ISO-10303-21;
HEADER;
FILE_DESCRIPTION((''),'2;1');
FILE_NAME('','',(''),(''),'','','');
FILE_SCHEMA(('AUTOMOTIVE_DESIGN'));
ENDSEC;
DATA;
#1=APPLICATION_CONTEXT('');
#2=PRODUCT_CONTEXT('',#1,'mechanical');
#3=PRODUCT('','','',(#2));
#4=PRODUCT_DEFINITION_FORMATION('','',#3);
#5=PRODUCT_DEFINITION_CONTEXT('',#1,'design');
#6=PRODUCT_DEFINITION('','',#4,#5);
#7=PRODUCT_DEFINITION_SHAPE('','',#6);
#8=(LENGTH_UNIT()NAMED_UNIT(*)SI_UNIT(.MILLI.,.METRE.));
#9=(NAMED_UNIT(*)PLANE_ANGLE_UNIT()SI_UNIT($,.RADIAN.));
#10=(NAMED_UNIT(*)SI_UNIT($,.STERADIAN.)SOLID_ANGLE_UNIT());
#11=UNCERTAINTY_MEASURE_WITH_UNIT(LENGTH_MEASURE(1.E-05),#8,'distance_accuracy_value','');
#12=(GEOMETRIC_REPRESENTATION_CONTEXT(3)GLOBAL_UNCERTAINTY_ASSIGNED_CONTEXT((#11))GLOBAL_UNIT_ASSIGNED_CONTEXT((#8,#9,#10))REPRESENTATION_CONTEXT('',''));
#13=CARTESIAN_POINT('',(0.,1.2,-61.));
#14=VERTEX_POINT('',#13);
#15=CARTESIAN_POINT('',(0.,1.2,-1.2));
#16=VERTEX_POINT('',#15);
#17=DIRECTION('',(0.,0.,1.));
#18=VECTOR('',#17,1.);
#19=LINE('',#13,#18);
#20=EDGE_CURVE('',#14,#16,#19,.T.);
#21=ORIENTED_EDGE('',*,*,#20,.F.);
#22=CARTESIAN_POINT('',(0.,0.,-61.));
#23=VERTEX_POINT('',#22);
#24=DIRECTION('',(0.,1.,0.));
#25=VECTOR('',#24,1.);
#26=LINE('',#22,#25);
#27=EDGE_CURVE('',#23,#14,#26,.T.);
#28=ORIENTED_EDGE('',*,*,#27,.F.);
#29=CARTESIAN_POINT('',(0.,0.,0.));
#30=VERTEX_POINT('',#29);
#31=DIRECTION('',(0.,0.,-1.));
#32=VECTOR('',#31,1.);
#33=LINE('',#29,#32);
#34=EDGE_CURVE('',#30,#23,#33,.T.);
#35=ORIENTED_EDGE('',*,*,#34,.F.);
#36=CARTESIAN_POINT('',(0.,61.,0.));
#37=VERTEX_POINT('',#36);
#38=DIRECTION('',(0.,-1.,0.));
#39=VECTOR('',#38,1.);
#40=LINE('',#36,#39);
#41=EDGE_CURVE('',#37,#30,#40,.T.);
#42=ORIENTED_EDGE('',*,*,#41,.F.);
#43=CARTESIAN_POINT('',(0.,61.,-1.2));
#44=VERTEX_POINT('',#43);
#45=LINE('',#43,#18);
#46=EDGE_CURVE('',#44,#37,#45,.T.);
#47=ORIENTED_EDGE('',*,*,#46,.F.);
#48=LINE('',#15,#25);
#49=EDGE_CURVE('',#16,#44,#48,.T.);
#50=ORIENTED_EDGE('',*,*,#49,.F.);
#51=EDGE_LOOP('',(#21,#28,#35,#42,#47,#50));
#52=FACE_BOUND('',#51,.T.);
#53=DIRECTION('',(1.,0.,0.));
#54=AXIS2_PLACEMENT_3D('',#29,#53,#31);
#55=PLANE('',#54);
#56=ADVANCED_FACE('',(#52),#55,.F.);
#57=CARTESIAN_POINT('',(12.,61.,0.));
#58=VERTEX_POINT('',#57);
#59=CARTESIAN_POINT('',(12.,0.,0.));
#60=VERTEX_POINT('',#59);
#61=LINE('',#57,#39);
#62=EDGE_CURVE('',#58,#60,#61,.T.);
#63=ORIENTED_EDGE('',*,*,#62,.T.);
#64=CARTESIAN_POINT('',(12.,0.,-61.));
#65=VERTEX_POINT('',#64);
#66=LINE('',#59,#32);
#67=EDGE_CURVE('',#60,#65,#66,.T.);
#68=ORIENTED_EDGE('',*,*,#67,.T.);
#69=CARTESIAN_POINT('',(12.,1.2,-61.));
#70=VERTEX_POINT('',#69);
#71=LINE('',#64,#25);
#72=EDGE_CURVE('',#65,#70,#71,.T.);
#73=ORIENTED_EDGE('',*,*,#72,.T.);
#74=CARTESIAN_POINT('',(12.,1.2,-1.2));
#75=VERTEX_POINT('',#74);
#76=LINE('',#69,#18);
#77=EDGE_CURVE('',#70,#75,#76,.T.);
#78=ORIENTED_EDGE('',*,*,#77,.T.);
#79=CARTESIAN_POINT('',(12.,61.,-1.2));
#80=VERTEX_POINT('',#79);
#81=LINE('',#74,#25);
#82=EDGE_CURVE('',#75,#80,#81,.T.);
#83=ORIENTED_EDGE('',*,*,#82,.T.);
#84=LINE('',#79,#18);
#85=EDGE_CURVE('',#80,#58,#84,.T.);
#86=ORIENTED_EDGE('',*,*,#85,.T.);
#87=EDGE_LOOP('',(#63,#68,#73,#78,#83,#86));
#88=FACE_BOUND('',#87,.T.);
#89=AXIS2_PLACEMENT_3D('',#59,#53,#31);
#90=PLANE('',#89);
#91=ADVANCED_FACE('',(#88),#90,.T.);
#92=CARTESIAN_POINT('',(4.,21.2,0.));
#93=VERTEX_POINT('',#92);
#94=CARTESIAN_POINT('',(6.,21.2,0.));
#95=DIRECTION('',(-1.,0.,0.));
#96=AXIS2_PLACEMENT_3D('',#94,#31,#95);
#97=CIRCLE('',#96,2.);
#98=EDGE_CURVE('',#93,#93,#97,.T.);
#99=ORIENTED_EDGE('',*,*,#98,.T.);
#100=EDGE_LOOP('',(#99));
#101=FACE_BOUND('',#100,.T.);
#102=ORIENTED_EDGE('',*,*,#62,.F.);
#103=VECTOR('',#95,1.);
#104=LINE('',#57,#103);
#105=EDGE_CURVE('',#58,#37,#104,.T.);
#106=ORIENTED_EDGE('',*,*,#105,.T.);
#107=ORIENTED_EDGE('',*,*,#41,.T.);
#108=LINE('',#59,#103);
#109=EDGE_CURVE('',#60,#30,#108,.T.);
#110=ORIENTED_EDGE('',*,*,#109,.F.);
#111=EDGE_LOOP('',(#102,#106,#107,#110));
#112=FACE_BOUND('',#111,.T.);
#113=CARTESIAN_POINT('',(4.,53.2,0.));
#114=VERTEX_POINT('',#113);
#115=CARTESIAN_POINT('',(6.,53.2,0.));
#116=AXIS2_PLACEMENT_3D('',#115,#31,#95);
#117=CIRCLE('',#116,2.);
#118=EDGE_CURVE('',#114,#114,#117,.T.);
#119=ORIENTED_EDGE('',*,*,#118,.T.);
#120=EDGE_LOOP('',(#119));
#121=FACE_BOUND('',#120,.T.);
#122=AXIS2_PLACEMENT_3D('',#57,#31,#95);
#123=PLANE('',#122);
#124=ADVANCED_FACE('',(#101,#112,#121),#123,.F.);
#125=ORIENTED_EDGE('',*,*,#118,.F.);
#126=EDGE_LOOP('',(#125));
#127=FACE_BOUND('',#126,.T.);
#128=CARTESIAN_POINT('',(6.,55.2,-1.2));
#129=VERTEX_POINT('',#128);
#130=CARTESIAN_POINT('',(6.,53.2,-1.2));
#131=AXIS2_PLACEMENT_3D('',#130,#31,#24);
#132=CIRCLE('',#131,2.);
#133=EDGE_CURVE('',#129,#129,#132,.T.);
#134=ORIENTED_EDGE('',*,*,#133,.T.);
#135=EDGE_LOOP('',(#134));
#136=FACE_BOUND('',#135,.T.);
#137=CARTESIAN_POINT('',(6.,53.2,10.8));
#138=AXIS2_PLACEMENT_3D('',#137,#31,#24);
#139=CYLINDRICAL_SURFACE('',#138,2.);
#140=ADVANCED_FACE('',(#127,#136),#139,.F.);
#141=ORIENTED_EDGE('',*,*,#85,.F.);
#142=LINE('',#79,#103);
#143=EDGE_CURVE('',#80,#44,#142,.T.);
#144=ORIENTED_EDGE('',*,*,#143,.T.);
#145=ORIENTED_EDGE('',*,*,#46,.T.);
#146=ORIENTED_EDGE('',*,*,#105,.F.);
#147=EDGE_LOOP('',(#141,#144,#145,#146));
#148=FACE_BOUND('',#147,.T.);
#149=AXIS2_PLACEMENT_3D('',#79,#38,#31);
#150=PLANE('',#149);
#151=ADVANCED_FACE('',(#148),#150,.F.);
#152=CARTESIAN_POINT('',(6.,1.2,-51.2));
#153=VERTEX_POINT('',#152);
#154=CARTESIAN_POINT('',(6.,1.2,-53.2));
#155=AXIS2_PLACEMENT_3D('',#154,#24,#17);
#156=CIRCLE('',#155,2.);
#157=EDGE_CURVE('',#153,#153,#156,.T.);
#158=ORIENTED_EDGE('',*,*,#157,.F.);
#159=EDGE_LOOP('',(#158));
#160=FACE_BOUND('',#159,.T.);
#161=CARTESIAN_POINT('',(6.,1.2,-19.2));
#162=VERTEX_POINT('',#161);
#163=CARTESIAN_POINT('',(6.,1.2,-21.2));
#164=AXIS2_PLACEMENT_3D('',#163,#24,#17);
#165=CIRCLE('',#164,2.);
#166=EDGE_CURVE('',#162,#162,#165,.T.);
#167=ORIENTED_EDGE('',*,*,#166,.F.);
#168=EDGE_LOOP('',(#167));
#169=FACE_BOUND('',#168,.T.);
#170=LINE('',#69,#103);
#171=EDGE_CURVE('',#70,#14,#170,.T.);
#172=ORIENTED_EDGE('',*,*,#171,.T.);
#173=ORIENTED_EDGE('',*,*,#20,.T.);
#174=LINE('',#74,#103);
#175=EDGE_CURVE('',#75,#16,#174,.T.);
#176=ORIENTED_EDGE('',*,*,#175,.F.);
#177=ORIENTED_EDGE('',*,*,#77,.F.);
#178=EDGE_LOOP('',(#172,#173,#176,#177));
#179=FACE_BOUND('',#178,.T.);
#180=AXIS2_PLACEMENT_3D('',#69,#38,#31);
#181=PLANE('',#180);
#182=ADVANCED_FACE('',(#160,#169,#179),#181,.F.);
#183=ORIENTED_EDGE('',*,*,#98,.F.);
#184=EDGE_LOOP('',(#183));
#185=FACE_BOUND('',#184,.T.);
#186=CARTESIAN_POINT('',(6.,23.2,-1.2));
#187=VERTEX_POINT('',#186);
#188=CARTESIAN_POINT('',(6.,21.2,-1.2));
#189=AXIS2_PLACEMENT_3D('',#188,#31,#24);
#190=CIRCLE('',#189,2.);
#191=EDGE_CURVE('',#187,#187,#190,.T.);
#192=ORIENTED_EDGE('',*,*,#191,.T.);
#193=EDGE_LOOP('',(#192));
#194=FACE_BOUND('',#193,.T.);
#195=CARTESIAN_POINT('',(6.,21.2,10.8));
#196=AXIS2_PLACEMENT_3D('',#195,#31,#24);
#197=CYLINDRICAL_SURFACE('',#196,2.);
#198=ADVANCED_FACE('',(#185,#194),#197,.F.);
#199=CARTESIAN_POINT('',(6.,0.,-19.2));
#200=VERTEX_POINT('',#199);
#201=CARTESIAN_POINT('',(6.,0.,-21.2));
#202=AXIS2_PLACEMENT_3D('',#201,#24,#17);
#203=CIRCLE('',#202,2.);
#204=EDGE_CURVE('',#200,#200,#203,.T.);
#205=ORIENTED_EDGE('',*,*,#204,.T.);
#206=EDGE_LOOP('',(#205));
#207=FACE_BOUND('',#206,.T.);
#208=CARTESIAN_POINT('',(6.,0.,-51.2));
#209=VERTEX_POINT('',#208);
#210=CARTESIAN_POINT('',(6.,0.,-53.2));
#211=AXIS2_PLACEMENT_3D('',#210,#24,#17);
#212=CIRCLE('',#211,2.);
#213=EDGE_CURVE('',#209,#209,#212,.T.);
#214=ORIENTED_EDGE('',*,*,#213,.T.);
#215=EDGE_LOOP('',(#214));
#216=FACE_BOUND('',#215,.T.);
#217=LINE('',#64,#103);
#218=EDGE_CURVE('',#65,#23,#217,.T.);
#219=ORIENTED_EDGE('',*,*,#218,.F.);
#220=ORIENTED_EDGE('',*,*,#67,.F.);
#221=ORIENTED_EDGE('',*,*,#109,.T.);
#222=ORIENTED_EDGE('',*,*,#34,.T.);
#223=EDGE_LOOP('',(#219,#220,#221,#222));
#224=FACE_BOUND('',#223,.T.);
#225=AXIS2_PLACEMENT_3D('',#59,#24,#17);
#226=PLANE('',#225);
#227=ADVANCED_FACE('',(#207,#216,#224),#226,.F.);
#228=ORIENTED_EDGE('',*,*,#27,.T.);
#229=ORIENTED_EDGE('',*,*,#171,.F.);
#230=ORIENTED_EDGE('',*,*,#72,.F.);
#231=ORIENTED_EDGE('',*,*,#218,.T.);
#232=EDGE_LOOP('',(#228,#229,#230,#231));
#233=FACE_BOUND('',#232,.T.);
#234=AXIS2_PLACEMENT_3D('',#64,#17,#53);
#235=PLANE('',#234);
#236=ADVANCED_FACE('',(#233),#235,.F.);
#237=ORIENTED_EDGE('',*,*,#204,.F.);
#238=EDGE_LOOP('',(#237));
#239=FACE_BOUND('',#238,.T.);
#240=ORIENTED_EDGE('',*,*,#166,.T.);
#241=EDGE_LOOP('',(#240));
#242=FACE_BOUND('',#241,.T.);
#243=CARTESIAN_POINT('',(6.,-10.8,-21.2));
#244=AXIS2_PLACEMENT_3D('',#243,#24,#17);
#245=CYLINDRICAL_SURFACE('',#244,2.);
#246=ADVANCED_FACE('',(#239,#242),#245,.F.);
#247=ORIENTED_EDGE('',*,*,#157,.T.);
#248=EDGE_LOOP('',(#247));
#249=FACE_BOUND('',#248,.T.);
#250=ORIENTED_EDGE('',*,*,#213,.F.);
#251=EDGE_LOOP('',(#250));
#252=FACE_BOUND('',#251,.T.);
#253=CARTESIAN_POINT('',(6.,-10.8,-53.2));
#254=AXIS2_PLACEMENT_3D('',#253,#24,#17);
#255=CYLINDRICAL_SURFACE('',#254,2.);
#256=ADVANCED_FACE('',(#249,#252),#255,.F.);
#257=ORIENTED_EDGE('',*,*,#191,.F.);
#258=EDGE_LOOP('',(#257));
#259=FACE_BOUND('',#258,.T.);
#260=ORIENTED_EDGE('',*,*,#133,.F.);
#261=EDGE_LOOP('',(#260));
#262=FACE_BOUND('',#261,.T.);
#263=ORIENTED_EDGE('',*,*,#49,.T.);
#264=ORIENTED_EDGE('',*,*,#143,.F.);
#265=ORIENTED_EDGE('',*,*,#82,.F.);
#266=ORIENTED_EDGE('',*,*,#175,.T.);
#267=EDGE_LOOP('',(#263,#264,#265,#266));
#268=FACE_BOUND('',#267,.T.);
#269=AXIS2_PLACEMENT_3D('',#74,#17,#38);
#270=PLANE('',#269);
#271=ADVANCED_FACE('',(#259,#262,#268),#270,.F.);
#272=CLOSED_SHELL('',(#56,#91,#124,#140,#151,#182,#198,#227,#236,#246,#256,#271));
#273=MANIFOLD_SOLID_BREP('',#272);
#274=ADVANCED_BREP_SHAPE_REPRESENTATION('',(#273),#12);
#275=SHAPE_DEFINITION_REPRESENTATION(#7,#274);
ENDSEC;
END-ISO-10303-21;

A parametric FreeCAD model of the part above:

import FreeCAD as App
import Part
import Sketcher
from FreeCAD import Vector
Q = App.Units.Quantity


def add_polygon(sketch, points):
    """Adds a closed chain of lines whose ends are joined by coincident constraints."""
    first, n = sketch.GeometryCount, len(points)
    for a, b in zip(points, points[1:] + points[:1]):
        sketch.addGeometry(Part.LineSegment(App.Vector(*a, 0), App.Vector(*b, 0)), False)
    for i in range(n):
        sketch.addConstraint(Sketcher.Constraint("Coincident", first + i, 2, first + (i + 1) % n, 1))

doc = App.newDocument("Part")
body = doc.addObject("PartDesign::Body", "Body")

# Sketch on YZ plane
sketch1 = body.newObject("Sketcher::SketchObject", "Sketch")
sketch1.AttachmentSupport = (doc.getObject("YZ_Plane"), [""])
sketch1.MapMode = "FlatFace"
add_polygon(sketch1, [(0, 0), (0, -61), (1.2, -61), (1.2, -1.2), (61, -1.2), (61, 0)])  # lines 0-5
sketch1.addConstraint([
    Sketcher.Constraint("Vertical", 0),
    Sketcher.Constraint("Horizontal", 1),
    Sketcher.Constraint("Vertical", 2),
    Sketcher.Constraint("Horizontal", 3),
    Sketcher.Constraint("Vertical", 4),
    Sketcher.Constraint("Horizontal", 5),
    Sketcher.Constraint("Coincident", 5, 2, -1, 1),
    Sketcher.Constraint("Equal", 5, 0),
    Sketcher.Constraint("Equal", 3, 2),
    Sketcher.Constraint("DistanceX", 5, 2, 5, 1, Q("61 mm")),
    Sketcher.Constraint("DistanceX", 1, 1, 1, 2, Q("1.2 mm")),
])
pad1 = body.newObject("PartDesign::Pad", "Pad")
pad1.Profile = sketch1
pad1.Length = 12

# Sketch on XZ plane
sketch2 = body.newObject("Sketcher::SketchObject", "Sketch001")
sketch2.AttachmentSupport = (doc.getObject("XZ_Plane"), [""])
sketch2.MapMode = "FlatFace"
sketch2.AttachmentOffset = App.Placement(Vector(0, 0, -1.2), App.Rotation())
sketch2.addGeometry([
    Part.Circle(Vector(6, -21.2, 0), Vector(0, 0, 1), 2),
    Part.Circle(Vector(6, -53.2, 0), Vector(0, 0, 1), 2),
], False)
sketch2.addConstraint([
    Sketcher.Constraint("Equal", 0, 1),
    Sketcher.Constraint("Vertical", 0, 3, 1, 3),
    Sketcher.Constraint("Diameter", 0, Q("4 mm")),
    Sketcher.Constraint("DistanceX", -1, 1, 0, 3, Q("6 mm")),
    Sketcher.Constraint("DistanceY", 1, 3, 0, 3, Q("32 mm")),
    Sketcher.Constraint("DistanceY", 0, 3, -1, 1, Q("21.2 mm")),
])
pocket1 = body.newObject("PartDesign::Pocket", "Pocket")
pocket1.Profile = sketch2
pocket1.Length = 12
pocket1.Reversed = True

# Sketch on XY plane
sketch3 = body.newObject("Sketcher::SketchObject", "Sketch002")
sketch3.AttachmentSupport = (doc.getObject("XY_Plane"), [""])
sketch3.MapMode = "FlatFace"
sketch3.AttachmentOffset = App.Placement(Vector(0, 0, -1.2), App.Rotation())
sketch3.addGeometry([
    Part.Circle(Vector(6, 21.2, 0), Vector(0, 0, 1), 2),
    Part.Circle(Vector(6, 53.2, 0), Vector(0, 0, 1), 2),
], False)
sketch3.addConstraint([
    Sketcher.Constraint("Equal", 0, 1),
    Sketcher.Constraint("Vertical", 0, 3, 1, 3),
    Sketcher.Constraint("Diameter", 0, Q("4 mm")),
    Sketcher.Constraint("DistanceX", -1, 1, 0, 3, Q("6 mm")),
    Sketcher.Constraint("DistanceY", 0, 3, 1, 3, Q("32 mm")),
    Sketcher.Constraint("DistanceY", -1, 1, 0, 3, Q("21.2 mm")),
])
pocket2 = body.newObject("PartDesign::Pocket", "Pocket001")
pocket2.Profile = sketch3
pocket2.Length = 12
pocket2.Reversed = True

doc.recompute()
